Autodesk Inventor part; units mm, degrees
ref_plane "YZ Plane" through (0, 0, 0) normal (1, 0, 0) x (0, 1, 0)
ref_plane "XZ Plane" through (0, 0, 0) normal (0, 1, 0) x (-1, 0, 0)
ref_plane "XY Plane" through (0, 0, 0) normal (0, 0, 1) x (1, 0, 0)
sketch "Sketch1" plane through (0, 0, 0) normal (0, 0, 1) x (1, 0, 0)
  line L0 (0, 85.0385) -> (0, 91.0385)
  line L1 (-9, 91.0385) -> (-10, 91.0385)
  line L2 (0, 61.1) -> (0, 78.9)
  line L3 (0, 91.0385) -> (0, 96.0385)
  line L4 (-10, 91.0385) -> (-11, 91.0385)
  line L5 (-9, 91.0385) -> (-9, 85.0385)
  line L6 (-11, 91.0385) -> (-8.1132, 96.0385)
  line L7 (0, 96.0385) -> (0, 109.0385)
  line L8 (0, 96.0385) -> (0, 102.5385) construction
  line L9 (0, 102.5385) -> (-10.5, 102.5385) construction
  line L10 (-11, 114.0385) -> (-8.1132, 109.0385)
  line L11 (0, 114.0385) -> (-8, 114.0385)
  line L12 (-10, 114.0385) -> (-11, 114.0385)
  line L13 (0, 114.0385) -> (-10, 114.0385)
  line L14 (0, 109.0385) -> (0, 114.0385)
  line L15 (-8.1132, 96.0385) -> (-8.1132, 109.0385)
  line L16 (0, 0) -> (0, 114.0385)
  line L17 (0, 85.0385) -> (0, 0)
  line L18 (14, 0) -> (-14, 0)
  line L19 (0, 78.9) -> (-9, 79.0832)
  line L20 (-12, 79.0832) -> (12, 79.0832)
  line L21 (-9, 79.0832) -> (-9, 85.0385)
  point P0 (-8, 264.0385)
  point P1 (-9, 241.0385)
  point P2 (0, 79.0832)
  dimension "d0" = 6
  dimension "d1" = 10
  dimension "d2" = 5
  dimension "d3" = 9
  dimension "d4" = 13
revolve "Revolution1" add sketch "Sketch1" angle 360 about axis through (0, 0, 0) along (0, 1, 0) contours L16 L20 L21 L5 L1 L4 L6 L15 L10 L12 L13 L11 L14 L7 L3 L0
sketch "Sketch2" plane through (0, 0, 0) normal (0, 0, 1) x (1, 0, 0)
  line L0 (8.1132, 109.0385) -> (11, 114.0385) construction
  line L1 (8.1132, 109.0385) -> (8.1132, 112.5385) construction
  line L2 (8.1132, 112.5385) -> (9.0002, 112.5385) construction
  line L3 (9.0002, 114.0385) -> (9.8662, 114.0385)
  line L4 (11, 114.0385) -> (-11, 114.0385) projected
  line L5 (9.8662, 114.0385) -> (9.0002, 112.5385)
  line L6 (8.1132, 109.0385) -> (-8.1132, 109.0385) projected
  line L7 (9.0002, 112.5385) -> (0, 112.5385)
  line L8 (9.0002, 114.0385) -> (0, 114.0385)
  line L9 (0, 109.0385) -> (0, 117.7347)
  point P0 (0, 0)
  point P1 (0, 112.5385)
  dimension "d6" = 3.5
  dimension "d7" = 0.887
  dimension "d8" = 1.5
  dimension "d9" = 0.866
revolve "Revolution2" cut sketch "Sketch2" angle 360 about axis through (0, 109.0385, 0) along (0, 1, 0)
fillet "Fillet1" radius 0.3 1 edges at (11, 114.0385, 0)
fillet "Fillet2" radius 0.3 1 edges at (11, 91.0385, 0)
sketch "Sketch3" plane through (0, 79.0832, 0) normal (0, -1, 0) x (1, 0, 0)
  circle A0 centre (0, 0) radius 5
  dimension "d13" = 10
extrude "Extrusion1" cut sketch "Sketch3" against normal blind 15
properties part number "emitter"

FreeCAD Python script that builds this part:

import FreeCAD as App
import Part
import Sketcher

V = App.Vector
Q = App.Units.Quantity


def edges_at(feature, points):
    """Names of the edges that pass closest to the given points."""
    edges = feature.Shape.Edges
    near = lambda p: min(range(len(edges)), key=lambda i: edges[i].distToShape(Part.Vertex(*p))[0])
    return sorted({f"Edge{near(p) + 1}" for p in points})


def add_polygon(sketch, points):
    """Adds a closed chain of lines whose ends are joined by coincident constraints."""
    first, n = sketch.GeometryCount, len(points)
    for a, b in zip(points, points[1:] + points[:1]):
        sketch.addGeometry(Part.LineSegment(App.Vector(*a, 0), App.Vector(*b, 0)), False)
    for i in range(n):
        sketch.addConstraint(Sketcher.Constraint("Coincident", first + i, 2, first + (i + 1) % n, 1))

doc = App.newDocument("Part")
body = doc.addObject("PartDesign::Body", "Body")

# Sketch on XY plane
sketch1 = body.newObject("Sketcher::SketchObject", "Sketch")
sketch1.AttachmentSupport = (doc.getObject("XY_Plane"), [""])
sketch1.MapMode = "FlatFace"
add_polygon(sketch1, [(0, 79.1), (0, 114), (-11, 114), (-8.1, 109), (-8.1, 96), (-11, 91), (-9, 91), (-9, 79.1)])  # lines 0-7
sketch1.addConstraint(Sketcher.Constraint("Vertical", 0))
sketch1.addConstraint(Sketcher.Constraint("Horizontal", 1))
sketch1.addConstraint(Sketcher.Constraint("Vertical", 3))
sketch1.addConstraint(Sketcher.Constraint("Horizontal", 5))
sketch1.addConstraint(Sketcher.Constraint("Vertical", 6))
sketch1.addConstraint(Sketcher.Constraint("Horizontal", 7))
sketch1.addConstraint(Sketcher.Constraint("PointOnObject", 0, 2, -2))
sketch1.addConstraint(Sketcher.Constraint("Vertical", 1, 2, 4, 2))
sketch1.addConstraint(Sketcher.Constraint("Equal", 2, 4))
sketch1.addConstraint(Sketcher.Constraint("DistanceX", 7, 1, 7, 2, 9.0))
sketch1.addConstraint(Sketcher.Constraint("DistanceY", 3, 2, 3, 1, 13.0))
sketch1.addConstraint(Sketcher.Constraint("DistanceY", 2, 2, 1, 2, 5.0))
sketch1.addConstraint(Sketcher.Constraint("DistanceX", 1, 2, 1, 1, 11.0))
sketch1.addConstraint(Sketcher.Constraint("Angle", 2, Q("-59.9996 deg")))
sketch1.addConstraint(Sketcher.Constraint("DistanceY", 0, 1, 0, 2, 34.9553))
sketch1.addConstraint(Sketcher.Constraint("DistanceY", -1, 1, 0, 2, 114.0385))
revolution = body.newObject("PartDesign::Revolution", "Revolution")
revolution.Profile = sketch1
revolution.ReferenceAxis = (sketch1, ["V_Axis"])
revolution.Angle = 360

# Sketch on XY plane
sketch2 = body.newObject("Sketcher::SketchObject", "Sketch001")
sketch2.AttachmentSupport = (doc.getObject("XY_Plane"), [""])
sketch2.MapMode = "FlatFace"
add_polygon(sketch2, [(9.9, 114), (0, 114), (0, 112.5), (9, 112.5)])  # lines 0-3
sketch2.addConstraint(Sketcher.Constraint("Horizontal", 0))
sketch2.addConstraint(Sketcher.Constraint("Vertical", 1))
sketch2.addConstraint(Sketcher.Constraint("Horizontal", 2))
sketch2.addConstraint(Sketcher.Constraint("PointOnObject", 0, 2, -2))
sketch2.addConstraint(Sketcher.Constraint("DistanceY", 1, 2, 1, 1, 1.5))
sketch2.addConstraint(Sketcher.Constraint("Angle", 3, Q("60.0007 deg")))
sketch2.addConstraint(Sketcher.Constraint("DistanceX", 0, 2, 0, 1, 9.8662))
sketch2.addConstraint(Sketcher.Constraint("DistanceY", -1, 1, 0, 2, 114.0385))
groove = body.newObject("PartDesign::Groove", "Groove")
groove.Profile = sketch2
groove.ReferenceAxis = (sketch2, ["V_Axis"])
groove.Angle = 360
doc.recompute()

fillet = body.newObject("PartDesign::Fillet", "Fillet")
fillet.Base = (groove, edges_at(groove, [(11, 114.038, 0)]))
fillet.Radius = 0.3
doc.recompute()

fillet2 = body.newObject("PartDesign::Fillet", "Fillet001")
fillet2.Base = (fillet, edges_at(fillet, [(11, 91.038, 0)]))
fillet2.Radius = 0.3

# Sketch on XZ plane
sketch3 = body.newObject("Sketcher::SketchObject", "Sketch002")
sketch3.AttachmentSupport = (doc.getObject("XZ_Plane"), [""])
sketch3.MapMode = "FlatFace"
sketch3.AttachmentOffset = App.Placement(V(0, 0, -79.0832), App.Rotation())
sketch3.addGeometry(Part.Circle(V(0, 0, 0), V(0, 0, 1), 5), False)
sketch3.addConstraint(Sketcher.Constraint("Coincident", 0, 3, -1, 1))
sketch3.addConstraint(Sketcher.Constraint("Diameter", 0, 10.0))
pocket1 = body.newObject("PartDesign::Pocket", "Pocket")
pocket1.Profile = sketch3
pocket1.Length = 15

doc.recompute()
